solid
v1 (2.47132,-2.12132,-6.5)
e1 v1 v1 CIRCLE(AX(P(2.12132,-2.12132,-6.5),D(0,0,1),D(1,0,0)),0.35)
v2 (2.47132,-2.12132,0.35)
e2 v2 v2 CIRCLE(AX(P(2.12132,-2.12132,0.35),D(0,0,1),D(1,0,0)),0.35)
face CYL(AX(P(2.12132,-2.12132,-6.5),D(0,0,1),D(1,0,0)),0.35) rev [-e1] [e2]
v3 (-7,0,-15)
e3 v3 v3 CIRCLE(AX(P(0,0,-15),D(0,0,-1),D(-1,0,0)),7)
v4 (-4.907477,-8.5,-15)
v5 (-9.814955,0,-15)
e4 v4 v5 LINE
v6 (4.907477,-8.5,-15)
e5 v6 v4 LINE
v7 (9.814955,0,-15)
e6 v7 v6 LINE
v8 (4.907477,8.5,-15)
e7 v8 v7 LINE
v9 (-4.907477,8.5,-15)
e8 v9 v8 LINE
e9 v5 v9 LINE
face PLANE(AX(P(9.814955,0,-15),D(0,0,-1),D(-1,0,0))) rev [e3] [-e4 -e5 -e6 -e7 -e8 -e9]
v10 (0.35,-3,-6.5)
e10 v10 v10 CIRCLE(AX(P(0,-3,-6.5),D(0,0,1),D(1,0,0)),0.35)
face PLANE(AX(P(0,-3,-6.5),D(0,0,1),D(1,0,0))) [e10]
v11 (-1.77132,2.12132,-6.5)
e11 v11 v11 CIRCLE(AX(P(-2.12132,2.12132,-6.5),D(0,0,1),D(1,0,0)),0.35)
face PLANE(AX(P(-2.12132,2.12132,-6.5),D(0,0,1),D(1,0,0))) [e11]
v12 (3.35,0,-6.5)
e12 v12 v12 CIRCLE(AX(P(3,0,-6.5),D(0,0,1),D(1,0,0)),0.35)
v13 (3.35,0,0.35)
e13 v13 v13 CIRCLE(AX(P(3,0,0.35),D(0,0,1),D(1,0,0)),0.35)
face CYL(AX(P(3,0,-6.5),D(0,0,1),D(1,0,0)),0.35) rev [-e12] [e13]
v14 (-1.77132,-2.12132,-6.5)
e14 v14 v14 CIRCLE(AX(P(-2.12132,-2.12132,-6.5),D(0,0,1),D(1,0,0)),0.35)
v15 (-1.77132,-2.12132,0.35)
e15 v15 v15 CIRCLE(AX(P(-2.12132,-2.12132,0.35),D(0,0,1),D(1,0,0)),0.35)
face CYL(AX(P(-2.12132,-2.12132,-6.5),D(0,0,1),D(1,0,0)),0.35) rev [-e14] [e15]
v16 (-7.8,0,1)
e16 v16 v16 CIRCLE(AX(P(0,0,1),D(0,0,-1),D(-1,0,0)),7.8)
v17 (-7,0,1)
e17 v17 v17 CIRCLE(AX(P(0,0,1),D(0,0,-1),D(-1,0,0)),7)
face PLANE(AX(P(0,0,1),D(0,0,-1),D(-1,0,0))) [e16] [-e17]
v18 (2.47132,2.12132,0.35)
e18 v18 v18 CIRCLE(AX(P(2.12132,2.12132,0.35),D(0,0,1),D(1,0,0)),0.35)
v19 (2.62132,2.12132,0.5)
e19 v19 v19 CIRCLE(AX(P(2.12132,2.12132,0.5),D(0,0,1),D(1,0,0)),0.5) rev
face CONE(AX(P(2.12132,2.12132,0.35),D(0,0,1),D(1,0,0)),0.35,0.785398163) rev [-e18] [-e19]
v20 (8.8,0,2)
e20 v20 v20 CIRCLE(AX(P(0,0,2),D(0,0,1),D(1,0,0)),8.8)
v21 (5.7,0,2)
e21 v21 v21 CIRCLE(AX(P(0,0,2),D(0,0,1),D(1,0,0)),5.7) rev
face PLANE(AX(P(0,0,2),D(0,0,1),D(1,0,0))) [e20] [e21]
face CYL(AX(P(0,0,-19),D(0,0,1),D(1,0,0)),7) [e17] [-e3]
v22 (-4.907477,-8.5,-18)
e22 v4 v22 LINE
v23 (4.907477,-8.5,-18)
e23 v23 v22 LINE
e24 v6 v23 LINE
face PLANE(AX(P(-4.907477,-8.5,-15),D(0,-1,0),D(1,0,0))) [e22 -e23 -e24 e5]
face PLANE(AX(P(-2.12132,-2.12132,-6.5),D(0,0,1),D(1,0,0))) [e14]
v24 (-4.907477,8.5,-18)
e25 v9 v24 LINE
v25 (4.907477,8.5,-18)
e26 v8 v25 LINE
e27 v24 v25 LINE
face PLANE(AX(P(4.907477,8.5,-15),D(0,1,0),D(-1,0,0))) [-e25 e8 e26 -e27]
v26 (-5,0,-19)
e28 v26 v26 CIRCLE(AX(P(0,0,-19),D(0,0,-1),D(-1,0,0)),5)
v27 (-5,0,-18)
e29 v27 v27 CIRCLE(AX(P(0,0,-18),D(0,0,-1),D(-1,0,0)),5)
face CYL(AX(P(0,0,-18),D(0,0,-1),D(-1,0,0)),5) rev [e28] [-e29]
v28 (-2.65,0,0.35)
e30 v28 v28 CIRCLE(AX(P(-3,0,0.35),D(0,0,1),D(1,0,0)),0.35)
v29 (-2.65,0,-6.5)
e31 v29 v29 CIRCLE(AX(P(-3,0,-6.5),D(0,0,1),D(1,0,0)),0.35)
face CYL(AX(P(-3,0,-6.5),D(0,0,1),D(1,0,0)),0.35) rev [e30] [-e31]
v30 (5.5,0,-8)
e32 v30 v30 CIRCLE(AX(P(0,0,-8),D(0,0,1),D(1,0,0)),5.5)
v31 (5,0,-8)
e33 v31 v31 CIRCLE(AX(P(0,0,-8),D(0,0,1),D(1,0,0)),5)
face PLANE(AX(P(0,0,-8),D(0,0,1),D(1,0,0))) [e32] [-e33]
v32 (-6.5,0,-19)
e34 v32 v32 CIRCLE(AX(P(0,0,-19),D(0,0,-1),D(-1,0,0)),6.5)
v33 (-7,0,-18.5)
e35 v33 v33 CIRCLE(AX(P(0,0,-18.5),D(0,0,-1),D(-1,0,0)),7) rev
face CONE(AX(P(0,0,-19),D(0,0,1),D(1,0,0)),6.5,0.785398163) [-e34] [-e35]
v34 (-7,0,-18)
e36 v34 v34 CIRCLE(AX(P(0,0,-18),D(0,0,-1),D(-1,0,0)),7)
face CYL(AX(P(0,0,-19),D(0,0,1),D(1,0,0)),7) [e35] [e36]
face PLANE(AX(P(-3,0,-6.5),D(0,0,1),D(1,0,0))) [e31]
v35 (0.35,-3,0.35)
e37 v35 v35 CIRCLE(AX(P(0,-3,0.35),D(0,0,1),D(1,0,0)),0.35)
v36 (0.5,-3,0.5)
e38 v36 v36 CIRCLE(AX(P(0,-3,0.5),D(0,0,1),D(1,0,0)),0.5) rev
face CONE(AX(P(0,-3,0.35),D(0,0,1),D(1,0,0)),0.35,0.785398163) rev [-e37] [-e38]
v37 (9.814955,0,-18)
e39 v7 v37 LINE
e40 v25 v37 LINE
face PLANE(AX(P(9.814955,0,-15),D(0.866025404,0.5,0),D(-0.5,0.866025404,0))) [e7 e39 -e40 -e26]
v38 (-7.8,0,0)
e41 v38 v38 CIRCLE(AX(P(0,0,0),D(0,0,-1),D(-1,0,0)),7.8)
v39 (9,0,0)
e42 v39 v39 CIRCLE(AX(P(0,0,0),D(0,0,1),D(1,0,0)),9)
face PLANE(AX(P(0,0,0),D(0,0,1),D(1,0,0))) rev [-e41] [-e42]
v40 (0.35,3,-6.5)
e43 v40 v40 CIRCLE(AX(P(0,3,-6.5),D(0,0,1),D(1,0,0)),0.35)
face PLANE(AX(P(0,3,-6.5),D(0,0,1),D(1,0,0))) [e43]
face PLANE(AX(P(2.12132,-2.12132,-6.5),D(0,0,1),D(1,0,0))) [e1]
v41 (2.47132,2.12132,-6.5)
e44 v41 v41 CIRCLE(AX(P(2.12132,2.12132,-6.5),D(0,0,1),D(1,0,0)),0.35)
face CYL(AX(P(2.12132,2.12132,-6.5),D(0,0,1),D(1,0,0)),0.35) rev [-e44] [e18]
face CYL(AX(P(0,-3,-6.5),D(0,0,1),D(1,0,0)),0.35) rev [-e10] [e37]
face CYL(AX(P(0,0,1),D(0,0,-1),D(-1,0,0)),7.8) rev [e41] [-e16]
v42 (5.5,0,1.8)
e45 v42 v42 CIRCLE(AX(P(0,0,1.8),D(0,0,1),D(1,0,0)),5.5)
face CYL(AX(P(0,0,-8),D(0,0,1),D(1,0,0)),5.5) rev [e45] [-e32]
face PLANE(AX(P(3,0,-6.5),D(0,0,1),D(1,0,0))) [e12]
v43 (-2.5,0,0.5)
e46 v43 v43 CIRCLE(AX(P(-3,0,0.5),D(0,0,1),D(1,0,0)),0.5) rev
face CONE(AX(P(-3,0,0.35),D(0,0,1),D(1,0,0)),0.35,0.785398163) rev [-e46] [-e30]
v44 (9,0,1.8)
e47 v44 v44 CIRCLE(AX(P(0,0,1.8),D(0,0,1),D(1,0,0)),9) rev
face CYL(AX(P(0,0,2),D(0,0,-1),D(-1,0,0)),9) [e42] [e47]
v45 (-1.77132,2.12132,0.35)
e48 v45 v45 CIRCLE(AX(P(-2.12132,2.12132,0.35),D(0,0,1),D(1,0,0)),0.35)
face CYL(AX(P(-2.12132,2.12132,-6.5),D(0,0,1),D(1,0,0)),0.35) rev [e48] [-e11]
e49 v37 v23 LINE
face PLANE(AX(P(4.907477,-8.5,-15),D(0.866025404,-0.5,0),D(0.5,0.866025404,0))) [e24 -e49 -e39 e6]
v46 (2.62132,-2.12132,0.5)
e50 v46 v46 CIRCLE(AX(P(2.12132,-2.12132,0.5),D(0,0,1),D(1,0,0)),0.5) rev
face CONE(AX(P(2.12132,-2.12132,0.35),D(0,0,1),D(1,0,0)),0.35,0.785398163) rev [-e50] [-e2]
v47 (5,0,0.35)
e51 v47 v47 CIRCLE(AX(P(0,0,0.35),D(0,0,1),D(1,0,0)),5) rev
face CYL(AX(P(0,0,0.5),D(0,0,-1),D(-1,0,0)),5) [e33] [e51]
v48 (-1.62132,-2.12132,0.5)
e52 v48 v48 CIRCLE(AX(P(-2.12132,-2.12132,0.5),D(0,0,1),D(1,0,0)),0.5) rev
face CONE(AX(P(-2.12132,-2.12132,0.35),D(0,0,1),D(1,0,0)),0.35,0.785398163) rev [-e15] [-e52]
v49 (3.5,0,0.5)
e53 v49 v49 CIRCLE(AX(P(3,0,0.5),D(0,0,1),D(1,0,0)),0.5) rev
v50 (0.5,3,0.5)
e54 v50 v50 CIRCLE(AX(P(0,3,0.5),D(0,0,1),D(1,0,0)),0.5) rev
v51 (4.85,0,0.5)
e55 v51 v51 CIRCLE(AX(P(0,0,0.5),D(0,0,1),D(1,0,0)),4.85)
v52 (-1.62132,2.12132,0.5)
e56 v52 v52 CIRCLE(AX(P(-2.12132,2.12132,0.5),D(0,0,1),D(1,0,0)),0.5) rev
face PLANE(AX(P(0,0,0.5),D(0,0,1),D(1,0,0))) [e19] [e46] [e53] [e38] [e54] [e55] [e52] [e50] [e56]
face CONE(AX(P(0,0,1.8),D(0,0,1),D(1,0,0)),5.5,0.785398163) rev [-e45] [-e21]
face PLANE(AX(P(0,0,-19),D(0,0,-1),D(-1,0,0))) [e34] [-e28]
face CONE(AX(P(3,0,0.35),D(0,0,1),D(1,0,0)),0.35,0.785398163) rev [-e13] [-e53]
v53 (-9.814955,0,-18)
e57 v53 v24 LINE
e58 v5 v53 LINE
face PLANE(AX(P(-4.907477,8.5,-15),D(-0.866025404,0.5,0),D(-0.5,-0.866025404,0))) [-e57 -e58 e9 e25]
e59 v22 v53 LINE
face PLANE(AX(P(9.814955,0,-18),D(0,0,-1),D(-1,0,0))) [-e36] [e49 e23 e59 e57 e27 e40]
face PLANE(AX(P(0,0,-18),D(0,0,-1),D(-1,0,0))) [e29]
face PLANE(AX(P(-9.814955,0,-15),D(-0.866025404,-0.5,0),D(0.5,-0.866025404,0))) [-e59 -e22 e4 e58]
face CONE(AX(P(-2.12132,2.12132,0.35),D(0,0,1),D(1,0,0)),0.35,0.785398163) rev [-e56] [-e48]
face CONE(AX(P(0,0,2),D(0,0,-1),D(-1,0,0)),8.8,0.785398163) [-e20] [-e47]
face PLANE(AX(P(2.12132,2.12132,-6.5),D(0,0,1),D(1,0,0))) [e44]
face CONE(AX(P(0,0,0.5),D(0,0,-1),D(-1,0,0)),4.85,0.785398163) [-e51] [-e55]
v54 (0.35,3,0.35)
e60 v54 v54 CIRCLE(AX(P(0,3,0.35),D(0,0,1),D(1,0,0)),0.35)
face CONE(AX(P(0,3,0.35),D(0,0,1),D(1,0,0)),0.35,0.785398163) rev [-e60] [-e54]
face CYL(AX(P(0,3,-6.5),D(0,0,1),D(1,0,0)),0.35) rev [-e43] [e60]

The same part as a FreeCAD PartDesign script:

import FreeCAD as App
import Part
import Sketcher
Q = App.Units.Quantity


def edges_at(feature, points):
    """Names of the edges that pass closest to the given points."""
    edges = feature.Shape.Edges
    near = lambda p: min(range(len(edges)), key=lambda i: edges[i].distToShape(Part.Vertex(*p))[0])
    return sorted({f"Edge{near(p) + 1}" for p in points})


def add_polygon(sketch, points):
    """Adds a closed chain of lines whose ends are joined by coincident constraints."""
    first, n = sketch.GeometryCount, len(points)
    for a, b in zip(points, points[1:] + points[:1]):
        sketch.addGeometry(Part.LineSegment(App.Vector(*a, 0), App.Vector(*b, 0)), False)
    for i in range(n):
        sketch.addConstraint(Sketcher.Constraint("Coincident", first + i, 2, first + (i + 1) % n, 1))

doc = App.newDocument("Part")
body = doc.addObject("PartDesign::Body", "Body")

sketch1 = doc.addObject("Sketcher::SketchObject", "Sketch")
body.addObject(sketch1)
sketch1.AttachmentSupport = (doc.XY_Plane, [""])
sketch1.MapMode = "FlatFace"
sketch1.addGeometry(Part.Circle(App.Vector(0, 0, 0), App.Vector(0, 0, 1), 9), False)
sketch1.addConstraint([
    Sketcher.Constraint("Coincident", 0, 3, -1, 1),
    Sketcher.Constraint("Diameter", 0, 18.0),
])
pad1 = doc.addObject("PartDesign::Pad", "Pad")
body.addObject(pad1)
pad1.Profile = sketch1
pad1.Length = 2

sketch2 = doc.addObject("Sketcher::SketchObject", "Sketch001")
body.addObject(sketch2)
sketch2.AttachmentSupport = (doc.XY_Plane, [""])
sketch2.MapMode = "FlatFace"
sketch2.addGeometry(Part.Circle(App.Vector(0, 0, 0), App.Vector(0, 0, 1), 7), False)
sketch2.addConstraint([
    Sketcher.Constraint("Coincident", 0, 3, -1, 1),
    Sketcher.Constraint("Diameter", 0, 14.0),
])
pad2 = doc.addObject("PartDesign::Pad", "Pad001")
body.addObject(pad2)
pad2.Profile = sketch2
pad2.Length = 19
pad2.Reversed = True

sketch3 = doc.addObject("Sketcher::SketchObject", "Sketch002")
body.addObject(sketch3)
sketch3.AttachmentSupport = (doc.XY_Plane, [""])
sketch3.MapMode = "FlatFace"
sketch3.AttachmentOffset = App.Placement(App.Vector(0, 0, 2), App.Rotation())
sketch3.addGeometry(Part.Circle(App.Vector(0, 0, 0), App.Vector(0, 0, 1), 6), False)
sketch3.addConstraint([
    Sketcher.Constraint("Coincident", 0, 3, -1, 1),
    Sketcher.Constraint("Diameter", 0, 11.0),
])
pocket1 = doc.addObject("PartDesign::Pocket", "Pocket")
body.addObject(pocket1)
pocket1.Profile = sketch3
pocket1.Length = 10

sketch4 = doc.addObject("Sketcher::SketchObject", "Sketch003")
body.addObject(sketch4)
sketch4.AttachmentSupport = (doc.XY_Plane, [""])
sketch4.MapMode = "FlatFace"
sketch4.addGeometry([
    Part.Circle(App.Vector(0, 0, 0), App.Vector(0, 0, 1), 8),
    Part.Circle(App.Vector(0, 0, 0), App.Vector(0, 0, 1), 7),
], False)
sketch4.addConstraint([
    Sketcher.Constraint("Coincident", 0, 3, -1, 1),
    Sketcher.Constraint("Coincident", 1, 3, -1, 1),
    Sketcher.Constraint("Diameter", 1, 14.0),
    Sketcher.Constraint("Diameter", 0, 15.6),
])
pocket2 = doc.addObject("PartDesign::Pocket", "Pocket001")
body.addObject(pocket2)
pocket2.Profile = sketch4
pocket2.Length = 1
pocket2.Reversed = True

sketch5 = doc.addObject("Sketcher::SketchObject", "Sketch004")
body.addObject(sketch5)
sketch5.AttachmentSupport = (doc.XY_Plane, [""])
sketch5.MapMode = "FlatFace"
sketch5.AttachmentOffset = App.Placement(App.Vector(0, 0, -8), App.Rotation())
sketch5.addGeometry(Part.Circle(App.Vector(0, 0, 0), App.Vector(0, 0, 1), 5), False)
sketch5.addConstraint([
    Sketcher.Constraint("Coincident", 0, 3, -1, 1),
    Sketcher.Constraint("Diameter", 0, 10.0),
])
pad3 = doc.addObject("PartDesign::Pad", "Pad002")
body.addObject(pad3)
pad3.Profile = sketch5
pad3.Length = 8.5

sketch6 = doc.addObject("Sketcher::SketchObject", "Sketch005")
body.addObject(sketch6)
sketch6.AttachmentSupport = (doc.XY_Plane, [""])
sketch6.MapMode = "FlatFace"
sketch6.AttachmentOffset = App.Placement(App.Vector(0, 0, 0.5), App.Rotation())
sketch6.addGeometry([
    Part.Circle(App.Vector(0, 3, 0), App.Vector(0, 0, 1), 0.35),
    Part.Circle(App.Vector(0, -3, 0), App.Vector(0, 0, 1), 0.35),
    Part.Circle(App.Vector(2.12, 2.12, 0), App.Vector(0, 0, 1), 0.35),
    Part.Circle(App.Vector(2.12, -2.12, 0), App.Vector(0, 0, 1), 0.35),
    Part.Circle(App.Vector(-2.12, 2.12, 0), App.Vector(0, 0, 1), 0.35),
    Part.Circle(App.Vector(-2.12, -2.12, 0), App.Vector(0, 0, 1), 0.35),
    Part.Circle(App.Vector(-3, 0, 0), App.Vector(0, 0, 1), 0.35),
    Part.Circle(App.Vector(3, 0, 0), App.Vector(0, 0, 1), 0.35),
], False)
sketch6.addConstraint([
    Sketcher.Constraint("Equal", 0, 1),
    Sketcher.Constraint("Equal", 1, 2),
    Sketcher.Constraint("Equal", 2, 3),
    Sketcher.Constraint("Equal", 3, 4),
    Sketcher.Constraint("Equal", 4, 5),
    Sketcher.Constraint("Equal", 5, 6),
    Sketcher.Constraint("Equal", 6, 7),
    Sketcher.Constraint("Symmetric", 0, 3, 1, 3, -1, 1),
    Sketcher.Constraint("Symmetric", 3, 3, 4, 3, -1, 1),
    Sketcher.Constraint("Symmetric", 2, 3, 5, 3, -1, 1),
    Sketcher.Constraint("Symmetric", 6, 3, 7, 3, -1, 1),
    Sketcher.Constraint("Symmetric", 2, 3, 4, 3, -2),
    Sketcher.Constraint("PointOnObject", 0, 3, -2),
    Sketcher.Constraint("PointOnObject", 6, 3, -1),
    Sketcher.Constraint("Diameter", 0, 0.7),
    Sketcher.Constraint("DistanceY", -1, 1, 0, 3, 3.0),
    Sketcher.Constraint("DistanceX", 6, 3, -1, 1, 3.0),
    Sketcher.Constraint("DistanceX", -1, 1, 2, 3, 2.12132),
    Sketcher.Constraint("DistanceY", -1, 1, 2, 3, 2.12132),
])
pocket3 = doc.addObject("PartDesign::Pocket", "Pocket002")
body.addObject(pocket3)
pocket3.Profile = sketch6
pocket3.Length = 7
doc.recompute()

chamfer = doc.addObject("PartDesign::Chamfer", "Chamfer")
body.addObject(chamfer)
chamfer.Base = (pocket3, edges_at(pocket3, [
    (-5, 0, 0.5),
    (-0.35, 3, 0.5),
    (-0.35, -3, 0.5),
    (1.771, 2.121, 0.5),
    (1.771, -2.121, 0.5),
    (-2.471, 2.121, 0.5),
    (-2.471, -2.121, 0.5),
    (-3.35, 0, 0.5),
    (2.65, 0, 0.5),
]))
chamfer.Size = 0.15
doc.recompute()

chamfer2 = doc.addObject("PartDesign::Chamfer", "Chamfer001")
body.addObject(chamfer2)
chamfer2.Base = (chamfer, edges_at(chamfer, [(-5.5, 0, 2), (-9, 0, 2)]))
chamfer2.Size = 0.2

sketch7 = doc.addObject("Sketcher::SketchObject", "Sketch006")
body.addObject(sketch7)
sketch7.AttachmentSupport = (doc.XY_Plane, [""])
sketch7.MapMode = "FlatFace"
sketch7.AttachmentOffset = App.Placement(App.Vector(0, 0, -19), App.Rotation())
sketch7.addGeometry(Part.Circle(App.Vector(0, 0, 0), App.Vector(0, 0, 1), 5), False)
sketch7.addConstraint([
    Sketcher.Constraint("Coincident", 0, 3, -1, 1),
    Sketcher.Constraint("Diameter", 0, 10.0),
])
pocket4 = doc.addObject("PartDesign::Pocket", "Pocket003")
body.addObject(pocket4)
pocket4.Profile = sketch7
pocket4.Length = 1
pocket4.Reversed = True
doc.recompute()

chamfer3 = doc.addObject("PartDesign::Chamfer", "Chamfer002")
body.addObject(chamfer3)
chamfer3.Base = (pocket4, edges_at(pocket4, [(7, 0, -19)]))
chamfer3.Size = 0.5

sketch8 = doc.addObject("Sketcher::SketchObject", "Sketch007")
body.addObject(sketch8)
sketch8.AttachmentSupport = (doc.XY_Plane, [""])
sketch8.MapMode = "FlatFace"
sketch8.AttachmentOffset = App.Placement(App.Vector(0, 0, -18), App.Rotation())
add_polygon(sketch8, [(-5, 8), (5, 8), (10, 0), (5, -8), (-5, -8), (-10, 0)])
sketch8.addConstraint([
    Sketcher.Constraint("Horizontal", 0),
    Sketcher.Constraint("Horizontal", 3),
    Sketcher.Constraint("Symmetric", 0, 2, 3, 2, -1, 1),
    Sketcher.Constraint("Symmetric", 1, 2, 4, 2, -1, 1),
    Sketcher.Constraint("PointOnObject", 1, 2, -1),
    Sketcher.Constraint("Parallel", 2, 5),
    Sketcher.Constraint("Vertical", 0, 2, 2, 2),
    Sketcher.Constraint("Angle", 1, Q("-60 deg")),
    Sketcher.Constraint("DistanceY", 2, 2, 0, 2, 17.0),
    Sketcher.Constraint("DistanceX", 0, 1, 0, 2, 9.814955),
])
pad4 = doc.addObject("PartDesign::Pad", "Pad003")
body.addObject(pad4)
pad4.Profile = sketch8
pad4.Length = 3

doc.recompute()
